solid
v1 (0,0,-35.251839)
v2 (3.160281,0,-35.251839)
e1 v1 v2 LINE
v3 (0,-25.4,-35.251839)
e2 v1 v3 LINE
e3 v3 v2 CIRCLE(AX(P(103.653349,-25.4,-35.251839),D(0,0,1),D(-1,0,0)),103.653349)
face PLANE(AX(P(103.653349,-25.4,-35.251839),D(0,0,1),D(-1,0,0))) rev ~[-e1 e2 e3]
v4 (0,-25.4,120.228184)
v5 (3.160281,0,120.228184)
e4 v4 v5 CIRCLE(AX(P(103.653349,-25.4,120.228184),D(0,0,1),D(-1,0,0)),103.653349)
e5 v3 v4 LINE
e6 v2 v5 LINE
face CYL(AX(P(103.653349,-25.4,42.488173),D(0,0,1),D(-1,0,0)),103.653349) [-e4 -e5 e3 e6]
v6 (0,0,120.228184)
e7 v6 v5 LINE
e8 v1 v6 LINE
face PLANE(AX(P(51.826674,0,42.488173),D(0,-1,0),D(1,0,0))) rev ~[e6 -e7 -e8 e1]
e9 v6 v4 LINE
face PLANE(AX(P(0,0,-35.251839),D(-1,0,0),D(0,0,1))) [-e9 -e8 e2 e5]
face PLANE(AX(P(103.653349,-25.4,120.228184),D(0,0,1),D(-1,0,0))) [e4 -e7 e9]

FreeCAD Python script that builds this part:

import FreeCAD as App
import Part
import Sketcher
from FreeCAD import Vector
Q = App.Units.Quantity

doc = App.newDocument("Part")
body = doc.addObject("PartDesign::Body", "Body")

# Sketch on XZ plane
sketch1 = doc.addObject("Sketcher::SketchObject", "Sketch")
body.addObject(sketch1)
sketch1.AttachmentSupport = (doc.XZ_Plane, [""])
sketch1.MapMode = "FlatFace"
sketch1.addGeometry([
    Part.LineSegment(Vector(0, 120, 0), Vector(0, -35, 0)),
    Part.LineSegment(Vector(0, -35, 0), Vector(104, -35, 0)),
    Part.LineSegment(Vector(104, -35, 0), Vector(104, 120, 0)),
    Part.LineSegment(Vector(104, 120, 0), Vector(0, 120, 0)),
], False)
sketch1.addConstraint([
    Sketcher.Constraint("Coincident", 0, 2, 1, 1),
    Sketcher.Constraint("Coincident", 1, 2, 2, 1),
    Sketcher.Constraint("Coincident", 2, 2, 3, 1),
    Sketcher.Constraint("Coincident", 3, 2, 0, 1),
    Sketcher.Constraint("Vertical", 0),
    Sketcher.Constraint("Horizontal", 1),
    Sketcher.Constraint("Vertical", 2),
    Sketcher.Constraint("Horizontal", 3),
    Sketcher.Constraint("PointOnObject", 0, 2, -2),
    Sketcher.Constraint("DistanceX", 1, 1, 1, 2, Q("103.653349 mm")),
    Sketcher.Constraint("DistanceY", 0, 2, 0, 1, Q("155.480023 mm")),
    Sketcher.Constraint("DistanceY", 0, 2, -1, 1, Q("35.251839 mm")),
])
pad1 = doc.addObject("PartDesign::Pad", "Pad")
body.addObject(pad1)
pad1.Profile = sketch1
pad1.Length = Q("1 in")

# Sketch on XZ plane
sketch2 = doc.addObject("Sketcher::SketchObject", "Sketch001")
body.addObject(sketch2)
sketch2.AttachmentSupport = (doc.XZ_Plane, [""])
sketch2.MapMode = "FlatFace"
sketch2.AttachmentOffset = App.Placement(Vector(0, 0, 1 * 25.4), App.Rotation())
sketch2.addGeometry([
    Part.LineSegment(Vector(0, 120, 0), Vector(0, -35, 0)),
    Part.LineSegment(Vector(0, -35, 0), Vector(104, -35, 0)),
    Part.LineSegment(Vector(104, -35, 0), Vector(104, 120, 0)),
    Part.LineSegment(Vector(104, 120, 0), Vector(0, 120, 0)),
], False)
sketch2.addGeometry(Part.LineSegment(Vector(104, -35, 0), Vector(104, 120, 0)), True)  # axis
sketch2.addConstraint([
    Sketcher.Constraint("Coincident", 0, 2, 1, 1),
    Sketcher.Constraint("Coincident", 1, 2, 2, 1),
    Sketcher.Constraint("Coincident", 2, 2, 3, 1),
    Sketcher.Constraint("Coincident", 3, 2, 0, 1),
    Sketcher.Constraint("Vertical", 0),
    Sketcher.Constraint("Horizontal", 1),
    Sketcher.Constraint("Vertical", 2),
    Sketcher.Constraint("Horizontal", 3),
    Sketcher.Constraint("Vertical", 4),
    Sketcher.Constraint("Coincident", 4, 1, 1, 2),
    Sketcher.Constraint("PointOnObject", 0, 2, -2),
    Sketcher.Constraint("Horizontal", 3, 2, 4, 2),
    Sketcher.Constraint("DistanceX", 1, 1, 1, 2, Q("103.653349 mm")),
    Sketcher.Constraint("DistanceY", 0, 2, 0, 1, Q("155.480023 mm")),
    Sketcher.Constraint("DistanceY", 0, 2, -1, 1, Q("35.251839 mm")),
])
revolution = doc.addObject("PartDesign::Revolution", "Revolution")
body.addObject(revolution)
revolution.Profile = sketch2
revolution.ReferenceAxis = (sketch2, ["Axis0"])
revolution.Angle = 360

doc.recompute()
